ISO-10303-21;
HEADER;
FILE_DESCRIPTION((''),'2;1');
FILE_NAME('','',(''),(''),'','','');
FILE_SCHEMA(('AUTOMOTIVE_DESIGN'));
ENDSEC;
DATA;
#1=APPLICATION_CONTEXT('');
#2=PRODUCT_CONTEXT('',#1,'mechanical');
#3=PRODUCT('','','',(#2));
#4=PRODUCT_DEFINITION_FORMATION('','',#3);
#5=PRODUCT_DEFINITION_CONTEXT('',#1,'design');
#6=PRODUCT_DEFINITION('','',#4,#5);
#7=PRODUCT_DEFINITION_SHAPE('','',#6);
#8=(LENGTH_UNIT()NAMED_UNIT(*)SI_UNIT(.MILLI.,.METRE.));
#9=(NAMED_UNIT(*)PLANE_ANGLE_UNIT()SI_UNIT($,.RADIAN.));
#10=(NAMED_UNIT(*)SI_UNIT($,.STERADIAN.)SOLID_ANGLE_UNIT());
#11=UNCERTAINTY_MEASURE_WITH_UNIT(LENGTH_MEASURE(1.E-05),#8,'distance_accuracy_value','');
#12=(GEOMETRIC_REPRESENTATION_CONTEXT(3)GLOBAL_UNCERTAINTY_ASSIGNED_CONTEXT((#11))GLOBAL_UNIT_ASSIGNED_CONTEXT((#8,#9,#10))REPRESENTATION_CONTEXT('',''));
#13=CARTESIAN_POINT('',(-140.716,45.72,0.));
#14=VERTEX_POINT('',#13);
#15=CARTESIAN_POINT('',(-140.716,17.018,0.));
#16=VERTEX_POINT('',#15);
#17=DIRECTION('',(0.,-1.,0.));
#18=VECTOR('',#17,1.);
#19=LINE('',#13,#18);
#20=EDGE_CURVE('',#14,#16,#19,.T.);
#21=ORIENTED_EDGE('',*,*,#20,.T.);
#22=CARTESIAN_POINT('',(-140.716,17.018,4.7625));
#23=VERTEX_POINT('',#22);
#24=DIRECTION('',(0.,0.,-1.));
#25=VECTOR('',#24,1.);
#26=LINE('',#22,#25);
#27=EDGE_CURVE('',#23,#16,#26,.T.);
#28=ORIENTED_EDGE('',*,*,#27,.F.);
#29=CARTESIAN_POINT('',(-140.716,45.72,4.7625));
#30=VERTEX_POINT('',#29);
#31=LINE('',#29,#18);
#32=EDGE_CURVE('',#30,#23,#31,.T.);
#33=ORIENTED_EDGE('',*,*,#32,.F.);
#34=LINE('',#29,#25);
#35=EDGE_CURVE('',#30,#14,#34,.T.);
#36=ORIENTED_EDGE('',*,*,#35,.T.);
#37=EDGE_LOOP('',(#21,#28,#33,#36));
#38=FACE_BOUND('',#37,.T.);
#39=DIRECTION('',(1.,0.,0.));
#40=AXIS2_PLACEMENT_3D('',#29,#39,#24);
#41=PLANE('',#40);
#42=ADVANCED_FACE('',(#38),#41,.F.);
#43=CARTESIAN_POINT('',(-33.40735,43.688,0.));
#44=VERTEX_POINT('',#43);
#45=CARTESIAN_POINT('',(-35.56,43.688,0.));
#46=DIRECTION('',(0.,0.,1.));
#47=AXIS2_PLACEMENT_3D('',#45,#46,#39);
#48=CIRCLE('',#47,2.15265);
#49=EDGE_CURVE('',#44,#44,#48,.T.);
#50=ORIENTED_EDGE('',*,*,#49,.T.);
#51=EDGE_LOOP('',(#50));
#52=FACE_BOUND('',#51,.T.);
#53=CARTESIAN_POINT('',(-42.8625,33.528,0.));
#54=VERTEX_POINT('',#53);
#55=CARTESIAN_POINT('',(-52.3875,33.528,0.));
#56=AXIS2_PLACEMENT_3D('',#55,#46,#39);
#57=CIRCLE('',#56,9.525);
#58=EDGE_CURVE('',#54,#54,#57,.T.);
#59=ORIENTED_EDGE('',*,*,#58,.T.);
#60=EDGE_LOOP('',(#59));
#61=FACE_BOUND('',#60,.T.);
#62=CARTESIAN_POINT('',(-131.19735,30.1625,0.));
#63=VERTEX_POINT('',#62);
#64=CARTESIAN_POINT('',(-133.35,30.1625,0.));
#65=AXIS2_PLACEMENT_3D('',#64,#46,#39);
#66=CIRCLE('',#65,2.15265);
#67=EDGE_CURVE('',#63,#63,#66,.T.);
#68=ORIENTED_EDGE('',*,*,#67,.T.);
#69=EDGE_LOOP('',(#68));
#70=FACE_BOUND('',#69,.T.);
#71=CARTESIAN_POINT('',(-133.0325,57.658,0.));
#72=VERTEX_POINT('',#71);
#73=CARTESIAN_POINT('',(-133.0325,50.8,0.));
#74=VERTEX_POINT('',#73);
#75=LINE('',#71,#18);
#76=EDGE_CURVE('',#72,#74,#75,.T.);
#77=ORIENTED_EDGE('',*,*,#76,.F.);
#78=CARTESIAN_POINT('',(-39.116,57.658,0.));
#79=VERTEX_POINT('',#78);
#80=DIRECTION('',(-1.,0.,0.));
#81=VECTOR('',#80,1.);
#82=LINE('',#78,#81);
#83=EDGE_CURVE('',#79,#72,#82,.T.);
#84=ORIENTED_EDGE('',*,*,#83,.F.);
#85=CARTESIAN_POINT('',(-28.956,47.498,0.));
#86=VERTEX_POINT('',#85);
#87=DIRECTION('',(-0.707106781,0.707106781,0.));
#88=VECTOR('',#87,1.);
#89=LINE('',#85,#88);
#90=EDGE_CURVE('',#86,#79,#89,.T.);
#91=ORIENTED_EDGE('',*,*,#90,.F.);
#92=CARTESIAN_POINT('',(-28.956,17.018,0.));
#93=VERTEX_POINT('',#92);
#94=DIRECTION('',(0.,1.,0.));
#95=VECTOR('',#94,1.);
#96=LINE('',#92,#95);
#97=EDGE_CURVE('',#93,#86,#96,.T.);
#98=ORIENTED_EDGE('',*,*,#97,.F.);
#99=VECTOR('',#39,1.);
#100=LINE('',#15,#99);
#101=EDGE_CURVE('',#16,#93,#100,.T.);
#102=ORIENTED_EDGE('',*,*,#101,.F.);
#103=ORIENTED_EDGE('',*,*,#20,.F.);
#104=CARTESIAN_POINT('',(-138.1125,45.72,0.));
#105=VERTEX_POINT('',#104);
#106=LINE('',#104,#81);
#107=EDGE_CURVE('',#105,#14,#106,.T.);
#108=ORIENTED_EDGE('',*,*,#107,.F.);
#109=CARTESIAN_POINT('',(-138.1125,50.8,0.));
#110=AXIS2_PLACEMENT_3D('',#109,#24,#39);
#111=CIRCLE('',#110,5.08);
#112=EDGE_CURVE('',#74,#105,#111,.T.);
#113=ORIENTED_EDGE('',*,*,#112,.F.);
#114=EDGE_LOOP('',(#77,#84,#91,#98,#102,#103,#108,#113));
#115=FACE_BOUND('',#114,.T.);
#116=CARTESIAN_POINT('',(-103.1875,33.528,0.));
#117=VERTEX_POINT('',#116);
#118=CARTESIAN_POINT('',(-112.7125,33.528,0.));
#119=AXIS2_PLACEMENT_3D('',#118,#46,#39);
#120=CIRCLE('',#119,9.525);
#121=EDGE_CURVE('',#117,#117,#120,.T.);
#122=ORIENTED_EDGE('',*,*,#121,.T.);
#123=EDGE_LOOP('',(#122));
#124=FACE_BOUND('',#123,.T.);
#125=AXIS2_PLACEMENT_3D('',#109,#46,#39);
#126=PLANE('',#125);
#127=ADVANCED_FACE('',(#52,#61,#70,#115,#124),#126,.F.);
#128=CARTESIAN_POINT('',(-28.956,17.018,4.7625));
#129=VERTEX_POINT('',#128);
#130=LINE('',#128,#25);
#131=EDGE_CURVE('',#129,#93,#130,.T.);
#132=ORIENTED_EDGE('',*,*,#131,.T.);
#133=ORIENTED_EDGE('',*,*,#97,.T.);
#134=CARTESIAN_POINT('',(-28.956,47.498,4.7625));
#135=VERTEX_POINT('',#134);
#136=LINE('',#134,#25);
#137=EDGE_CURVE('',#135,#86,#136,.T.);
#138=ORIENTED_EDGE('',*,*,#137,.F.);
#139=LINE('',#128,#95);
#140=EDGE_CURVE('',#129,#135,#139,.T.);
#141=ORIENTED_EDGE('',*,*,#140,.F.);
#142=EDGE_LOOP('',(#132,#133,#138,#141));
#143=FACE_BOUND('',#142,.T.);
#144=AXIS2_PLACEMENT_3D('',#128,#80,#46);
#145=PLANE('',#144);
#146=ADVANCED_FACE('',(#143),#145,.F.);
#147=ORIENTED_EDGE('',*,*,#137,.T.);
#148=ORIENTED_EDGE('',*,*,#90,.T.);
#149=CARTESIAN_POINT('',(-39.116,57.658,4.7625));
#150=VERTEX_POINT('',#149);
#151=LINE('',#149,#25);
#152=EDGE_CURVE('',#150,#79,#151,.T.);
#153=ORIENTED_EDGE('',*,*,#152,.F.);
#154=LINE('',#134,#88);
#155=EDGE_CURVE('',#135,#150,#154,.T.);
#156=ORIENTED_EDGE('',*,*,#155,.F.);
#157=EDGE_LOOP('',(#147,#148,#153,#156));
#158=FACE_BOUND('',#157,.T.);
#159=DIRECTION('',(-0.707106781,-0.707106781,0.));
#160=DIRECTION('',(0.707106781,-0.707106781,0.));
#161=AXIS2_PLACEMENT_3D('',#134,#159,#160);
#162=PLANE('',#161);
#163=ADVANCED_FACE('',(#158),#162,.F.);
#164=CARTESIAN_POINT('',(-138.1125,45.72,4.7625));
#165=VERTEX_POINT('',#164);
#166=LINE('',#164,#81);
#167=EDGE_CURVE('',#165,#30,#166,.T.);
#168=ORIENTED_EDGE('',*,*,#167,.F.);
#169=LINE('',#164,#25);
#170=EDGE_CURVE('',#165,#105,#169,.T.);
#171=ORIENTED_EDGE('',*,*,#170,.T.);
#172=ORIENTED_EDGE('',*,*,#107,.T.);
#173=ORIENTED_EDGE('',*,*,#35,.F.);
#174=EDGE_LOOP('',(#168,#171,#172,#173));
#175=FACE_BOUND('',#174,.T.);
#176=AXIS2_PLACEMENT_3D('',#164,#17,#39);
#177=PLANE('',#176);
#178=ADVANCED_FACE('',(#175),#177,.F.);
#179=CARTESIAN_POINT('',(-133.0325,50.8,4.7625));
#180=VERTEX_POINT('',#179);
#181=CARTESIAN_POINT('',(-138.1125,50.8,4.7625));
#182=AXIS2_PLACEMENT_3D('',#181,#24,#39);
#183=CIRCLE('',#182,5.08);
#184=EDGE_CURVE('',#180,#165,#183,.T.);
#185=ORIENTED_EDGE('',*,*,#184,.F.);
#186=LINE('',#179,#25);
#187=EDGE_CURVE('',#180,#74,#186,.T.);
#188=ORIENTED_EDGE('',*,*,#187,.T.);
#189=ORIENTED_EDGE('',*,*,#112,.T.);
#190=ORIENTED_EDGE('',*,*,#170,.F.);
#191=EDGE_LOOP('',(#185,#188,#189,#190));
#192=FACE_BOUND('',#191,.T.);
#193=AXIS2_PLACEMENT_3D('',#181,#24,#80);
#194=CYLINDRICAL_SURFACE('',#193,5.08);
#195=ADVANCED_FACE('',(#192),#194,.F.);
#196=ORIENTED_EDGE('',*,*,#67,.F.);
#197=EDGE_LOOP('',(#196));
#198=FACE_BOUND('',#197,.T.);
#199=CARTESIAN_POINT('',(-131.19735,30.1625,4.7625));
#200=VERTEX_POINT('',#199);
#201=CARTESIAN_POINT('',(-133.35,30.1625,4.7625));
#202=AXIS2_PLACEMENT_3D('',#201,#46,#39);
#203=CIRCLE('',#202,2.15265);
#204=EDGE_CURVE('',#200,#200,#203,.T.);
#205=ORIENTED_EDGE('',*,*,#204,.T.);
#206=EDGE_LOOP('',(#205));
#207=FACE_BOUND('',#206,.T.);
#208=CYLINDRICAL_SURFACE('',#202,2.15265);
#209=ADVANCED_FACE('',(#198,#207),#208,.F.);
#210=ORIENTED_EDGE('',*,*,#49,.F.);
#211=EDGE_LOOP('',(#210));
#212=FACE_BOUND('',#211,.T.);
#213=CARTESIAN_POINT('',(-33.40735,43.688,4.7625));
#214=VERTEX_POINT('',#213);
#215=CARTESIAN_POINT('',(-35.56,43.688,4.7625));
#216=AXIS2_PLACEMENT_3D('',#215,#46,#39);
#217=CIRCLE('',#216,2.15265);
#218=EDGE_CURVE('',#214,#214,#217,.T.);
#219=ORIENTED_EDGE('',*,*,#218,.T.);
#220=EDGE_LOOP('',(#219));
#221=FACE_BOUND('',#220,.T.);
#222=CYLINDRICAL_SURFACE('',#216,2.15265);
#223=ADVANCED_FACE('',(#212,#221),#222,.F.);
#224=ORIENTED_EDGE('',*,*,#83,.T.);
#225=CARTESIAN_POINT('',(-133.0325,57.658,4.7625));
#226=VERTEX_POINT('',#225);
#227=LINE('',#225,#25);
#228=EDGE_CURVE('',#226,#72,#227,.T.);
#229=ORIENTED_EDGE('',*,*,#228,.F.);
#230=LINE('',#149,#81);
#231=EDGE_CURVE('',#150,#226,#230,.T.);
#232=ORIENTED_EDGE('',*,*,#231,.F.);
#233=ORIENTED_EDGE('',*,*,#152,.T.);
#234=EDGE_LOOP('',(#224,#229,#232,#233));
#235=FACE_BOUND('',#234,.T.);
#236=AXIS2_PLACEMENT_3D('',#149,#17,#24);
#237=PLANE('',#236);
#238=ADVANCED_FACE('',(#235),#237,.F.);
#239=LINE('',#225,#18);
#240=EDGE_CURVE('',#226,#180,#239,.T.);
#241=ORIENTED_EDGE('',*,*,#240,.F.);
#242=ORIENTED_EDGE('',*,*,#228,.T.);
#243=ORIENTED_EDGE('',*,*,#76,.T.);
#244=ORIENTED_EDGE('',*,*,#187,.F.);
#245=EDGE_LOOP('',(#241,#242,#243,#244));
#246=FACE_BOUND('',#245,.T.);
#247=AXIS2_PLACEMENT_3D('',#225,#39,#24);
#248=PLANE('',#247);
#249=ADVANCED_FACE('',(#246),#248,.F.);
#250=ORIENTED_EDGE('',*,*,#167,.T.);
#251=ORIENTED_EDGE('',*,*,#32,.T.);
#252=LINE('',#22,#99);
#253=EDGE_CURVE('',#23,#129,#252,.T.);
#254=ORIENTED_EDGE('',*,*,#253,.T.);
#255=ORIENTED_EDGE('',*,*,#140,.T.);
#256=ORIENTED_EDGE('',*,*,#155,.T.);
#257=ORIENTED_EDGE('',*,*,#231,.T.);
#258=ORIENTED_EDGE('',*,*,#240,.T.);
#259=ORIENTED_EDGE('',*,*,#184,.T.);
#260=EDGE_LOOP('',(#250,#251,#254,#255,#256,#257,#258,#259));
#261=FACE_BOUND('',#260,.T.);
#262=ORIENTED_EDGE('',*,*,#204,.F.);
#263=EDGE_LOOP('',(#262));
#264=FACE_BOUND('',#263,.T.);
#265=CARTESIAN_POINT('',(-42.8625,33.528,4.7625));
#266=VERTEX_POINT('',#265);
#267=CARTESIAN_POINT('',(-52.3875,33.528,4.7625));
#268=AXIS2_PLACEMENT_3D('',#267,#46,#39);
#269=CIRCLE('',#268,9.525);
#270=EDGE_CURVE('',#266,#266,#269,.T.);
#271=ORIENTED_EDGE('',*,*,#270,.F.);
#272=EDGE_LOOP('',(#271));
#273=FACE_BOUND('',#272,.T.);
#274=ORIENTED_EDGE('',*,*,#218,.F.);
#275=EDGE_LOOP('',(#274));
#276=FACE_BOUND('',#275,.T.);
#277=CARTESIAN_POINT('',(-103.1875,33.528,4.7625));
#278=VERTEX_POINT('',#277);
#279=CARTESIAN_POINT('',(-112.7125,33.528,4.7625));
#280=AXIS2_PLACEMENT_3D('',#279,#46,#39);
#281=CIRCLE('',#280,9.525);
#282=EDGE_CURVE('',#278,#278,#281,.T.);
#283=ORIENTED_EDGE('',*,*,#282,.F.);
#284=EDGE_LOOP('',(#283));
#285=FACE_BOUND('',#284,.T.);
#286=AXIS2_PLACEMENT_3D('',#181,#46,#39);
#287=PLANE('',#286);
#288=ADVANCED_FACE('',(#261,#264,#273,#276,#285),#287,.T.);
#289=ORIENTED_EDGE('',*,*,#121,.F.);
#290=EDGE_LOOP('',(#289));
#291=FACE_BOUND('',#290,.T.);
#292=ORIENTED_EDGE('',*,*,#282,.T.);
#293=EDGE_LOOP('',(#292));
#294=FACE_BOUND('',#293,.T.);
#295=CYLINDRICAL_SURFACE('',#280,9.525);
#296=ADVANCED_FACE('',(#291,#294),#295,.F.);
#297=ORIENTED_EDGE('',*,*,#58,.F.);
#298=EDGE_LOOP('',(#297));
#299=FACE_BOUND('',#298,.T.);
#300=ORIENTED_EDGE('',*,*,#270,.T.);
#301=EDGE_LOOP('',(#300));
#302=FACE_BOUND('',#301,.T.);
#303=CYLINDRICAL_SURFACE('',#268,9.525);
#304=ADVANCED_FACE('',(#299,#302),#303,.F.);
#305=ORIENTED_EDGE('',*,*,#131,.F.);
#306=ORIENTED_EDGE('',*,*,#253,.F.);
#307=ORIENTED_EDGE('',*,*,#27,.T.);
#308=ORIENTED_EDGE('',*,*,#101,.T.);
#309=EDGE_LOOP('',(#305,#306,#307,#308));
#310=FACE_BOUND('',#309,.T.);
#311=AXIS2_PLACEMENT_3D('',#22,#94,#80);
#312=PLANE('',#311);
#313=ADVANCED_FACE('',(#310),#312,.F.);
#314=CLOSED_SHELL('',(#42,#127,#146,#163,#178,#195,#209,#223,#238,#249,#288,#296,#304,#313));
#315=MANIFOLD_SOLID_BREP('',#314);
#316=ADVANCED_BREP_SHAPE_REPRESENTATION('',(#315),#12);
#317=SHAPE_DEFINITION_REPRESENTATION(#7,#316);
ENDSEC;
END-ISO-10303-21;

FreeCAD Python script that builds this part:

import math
import FreeCAD as App
import Part
import Sketcher

V = App.Vector
Q = App.Units.Quantity

doc = App.newDocument("Part")
body = doc.addObject("PartDesign::Body", "Body")

sketch1 = body.newObject("Sketcher::SketchObject", "Sketch")
sketch1.AttachmentSupport = (doc.getObject("XY_Plane"), [""])
sketch1.MapMode = "FlatFace"
sketch1.addGeometry([
    Part.LineSegment(V(-133, 57.7, 0), V(-133, 50.8, 0)),
    Part.ArcOfCircle(Part.Circle(V(-138.1, 50.8, 0), V(0, 0, 1), 5.1), math.radians(-90), math.radians(0)),
    Part.LineSegment(V(-138.1, 45.7, 0), V(-140.7, 45.7, 0)),
    Part.LineSegment(V(-140.7, 45.7, 0), V(-140.7, 17, 0)),
    Part.LineSegment(V(-140.7, 17, 0), V(-29, 17, 0)),
    Part.LineSegment(V(-29, 17, 0), V(-29, 47.5, 0)),
    Part.LineSegment(V(-29, 47.5, 0), V(-39.1, 57.7, 0)),
    Part.LineSegment(V(-39.1, 57.7, 0), V(-133, 57.7, 0)),
], False)
sketch1.addConstraint([
    Sketcher.Constraint("Tangent", 0, 2, 1, 2),
    Sketcher.Constraint("Tangent", 1, 1, 2, 1),
    Sketcher.Constraint("Coincident", 2, 2, 3, 1),
    Sketcher.Constraint("Coincident", 3, 2, 4, 1),
    Sketcher.Constraint("Coincident", 4, 2, 5, 1),
    Sketcher.Constraint("Coincident", 5, 2, 6, 1),
    Sketcher.Constraint("Coincident", 6, 2, 7, 1),
    Sketcher.Constraint("Coincident", 7, 2, 0, 1),
    Sketcher.Constraint("Vertical", 0),
    Sketcher.Constraint("Horizontal", 2),
    Sketcher.Constraint("Vertical", 3),
    Sketcher.Constraint("Horizontal", 4),
    Sketcher.Constraint("Vertical", 5),
    Sketcher.Constraint("Horizontal", 7),
    Sketcher.Constraint("Radius", 1, Q("0.2 in")),
    Sketcher.Constraint("DistanceX", 4, 1, 4, 2, Q("4.4 in")),
    Sketcher.Constraint("DistanceY", 5, 1, 5, 2, Q("1.2 in")),
    Sketcher.Constraint("DistanceY", -1, 1, 1, 3, Q("2 in")),
    Sketcher.Constraint("Angle", 6, Q("135 deg")),
    Sketcher.Constraint("DistanceY", 0, 2, 0, 1, Q("0.27 in")),
    Sketcher.Constraint("DistanceY", 3, 2, 3, 1, Q("1.13 in")),
    Sketcher.Constraint("DistanceX", 2, 2, -1, 1, Q("5.54 in")),
    Sketcher.Constraint("DistanceX", 2, 2, 2, 1, Q("0.1025 in")),
])
pad1 = body.newObject("PartDesign::Pad", "Pad")
pad1.Profile = sketch1
pad1.Length = Q("0.1875 in")

sketch2 = body.newObject("Sketcher::SketchObject", "Sketch001")
sketch2.AttachmentSupport = (doc.getObject("XY_Plane"), [""])
sketch2.MapMode = "FlatFace"
sketch2.AttachmentOffset = App.Placement(V(0, 0, 0.1875 * 25.4), App.Rotation())
sketch2.addGeometry([
    Part.Circle(V(-133.3, 30.2, 0), V(0, 0, 1), 2.2),
    Part.Circle(V(-35.6, 43.7, 0), V(0, 0, 1), 2.2),
], False)
sketch2.addConstraint([
    Sketcher.Constraint("Equal", 0, 1),
    Sketcher.Constraint("Diameter", 0, Q("0.1695 in")),
    Sketcher.Constraint("DistanceX", 1, 3, -1, 1, Q("1.4 in")),
    Sketcher.Constraint("DistanceX", 0, 3, -1, 1, Q("5.25 in")),
    Sketcher.Constraint("DistanceY", -1, 1, 1, 3, Q("1.72 in")),
    Sketcher.Constraint("DistanceY", -1, 1, 0, 3, Q("1.1875 in")),
])
doc.recompute()
hole = body.newObject("PartDesign::Hole", "Hole")
hole.Profile = sketch2
hole.ThreadType = "None"
hole.Diameter = Q("0.1695 in")
hole.DepthType = "ThroughAll"

sketch3 = body.newObject("Sketcher::SketchObject", "Sketch002")
sketch3.AttachmentSupport = (doc.getObject("XY_Plane"), [""])
sketch3.MapMode = "FlatFace"
sketch3.AttachmentOffset = App.Placement(V(0, 0, 0.1875 * 25.4), App.Rotation())
sketch3.addGeometry([
    Part.Circle(V(-113, 34, 0), V(0, 0, 1), 10),
    Part.Circle(V(-52, 34, 0), V(0, 0, 1), 10),
], False)
sketch3.addConstraint([
    Sketcher.Constraint("Equal", 0, 1),
    Sketcher.Constraint("Horizontal", 0, 3, 1, 3),
    Sketcher.Constraint("Diameter", 0, Q("0.75 in")),
    Sketcher.Constraint("DistanceY", -1, 1, 0, 3, Q("1.32 in")),
    Sketcher.Constraint("DistanceX", 0, 3, -1, 1, Q("4.4375 in")),
    Sketcher.Constraint("DistanceX", 1, 3, -1, 1, Q("2.0625 in")),
])
doc.recompute()
hole2 = body.newObject("PartDesign::Hole", "Hole001")
hole2.Profile = sketch3
hole2.ThreadType = "None"
hole2.Diameter = Q("0.75 in")
hole2.DepthType = "ThroughAll"

doc.recompute()
